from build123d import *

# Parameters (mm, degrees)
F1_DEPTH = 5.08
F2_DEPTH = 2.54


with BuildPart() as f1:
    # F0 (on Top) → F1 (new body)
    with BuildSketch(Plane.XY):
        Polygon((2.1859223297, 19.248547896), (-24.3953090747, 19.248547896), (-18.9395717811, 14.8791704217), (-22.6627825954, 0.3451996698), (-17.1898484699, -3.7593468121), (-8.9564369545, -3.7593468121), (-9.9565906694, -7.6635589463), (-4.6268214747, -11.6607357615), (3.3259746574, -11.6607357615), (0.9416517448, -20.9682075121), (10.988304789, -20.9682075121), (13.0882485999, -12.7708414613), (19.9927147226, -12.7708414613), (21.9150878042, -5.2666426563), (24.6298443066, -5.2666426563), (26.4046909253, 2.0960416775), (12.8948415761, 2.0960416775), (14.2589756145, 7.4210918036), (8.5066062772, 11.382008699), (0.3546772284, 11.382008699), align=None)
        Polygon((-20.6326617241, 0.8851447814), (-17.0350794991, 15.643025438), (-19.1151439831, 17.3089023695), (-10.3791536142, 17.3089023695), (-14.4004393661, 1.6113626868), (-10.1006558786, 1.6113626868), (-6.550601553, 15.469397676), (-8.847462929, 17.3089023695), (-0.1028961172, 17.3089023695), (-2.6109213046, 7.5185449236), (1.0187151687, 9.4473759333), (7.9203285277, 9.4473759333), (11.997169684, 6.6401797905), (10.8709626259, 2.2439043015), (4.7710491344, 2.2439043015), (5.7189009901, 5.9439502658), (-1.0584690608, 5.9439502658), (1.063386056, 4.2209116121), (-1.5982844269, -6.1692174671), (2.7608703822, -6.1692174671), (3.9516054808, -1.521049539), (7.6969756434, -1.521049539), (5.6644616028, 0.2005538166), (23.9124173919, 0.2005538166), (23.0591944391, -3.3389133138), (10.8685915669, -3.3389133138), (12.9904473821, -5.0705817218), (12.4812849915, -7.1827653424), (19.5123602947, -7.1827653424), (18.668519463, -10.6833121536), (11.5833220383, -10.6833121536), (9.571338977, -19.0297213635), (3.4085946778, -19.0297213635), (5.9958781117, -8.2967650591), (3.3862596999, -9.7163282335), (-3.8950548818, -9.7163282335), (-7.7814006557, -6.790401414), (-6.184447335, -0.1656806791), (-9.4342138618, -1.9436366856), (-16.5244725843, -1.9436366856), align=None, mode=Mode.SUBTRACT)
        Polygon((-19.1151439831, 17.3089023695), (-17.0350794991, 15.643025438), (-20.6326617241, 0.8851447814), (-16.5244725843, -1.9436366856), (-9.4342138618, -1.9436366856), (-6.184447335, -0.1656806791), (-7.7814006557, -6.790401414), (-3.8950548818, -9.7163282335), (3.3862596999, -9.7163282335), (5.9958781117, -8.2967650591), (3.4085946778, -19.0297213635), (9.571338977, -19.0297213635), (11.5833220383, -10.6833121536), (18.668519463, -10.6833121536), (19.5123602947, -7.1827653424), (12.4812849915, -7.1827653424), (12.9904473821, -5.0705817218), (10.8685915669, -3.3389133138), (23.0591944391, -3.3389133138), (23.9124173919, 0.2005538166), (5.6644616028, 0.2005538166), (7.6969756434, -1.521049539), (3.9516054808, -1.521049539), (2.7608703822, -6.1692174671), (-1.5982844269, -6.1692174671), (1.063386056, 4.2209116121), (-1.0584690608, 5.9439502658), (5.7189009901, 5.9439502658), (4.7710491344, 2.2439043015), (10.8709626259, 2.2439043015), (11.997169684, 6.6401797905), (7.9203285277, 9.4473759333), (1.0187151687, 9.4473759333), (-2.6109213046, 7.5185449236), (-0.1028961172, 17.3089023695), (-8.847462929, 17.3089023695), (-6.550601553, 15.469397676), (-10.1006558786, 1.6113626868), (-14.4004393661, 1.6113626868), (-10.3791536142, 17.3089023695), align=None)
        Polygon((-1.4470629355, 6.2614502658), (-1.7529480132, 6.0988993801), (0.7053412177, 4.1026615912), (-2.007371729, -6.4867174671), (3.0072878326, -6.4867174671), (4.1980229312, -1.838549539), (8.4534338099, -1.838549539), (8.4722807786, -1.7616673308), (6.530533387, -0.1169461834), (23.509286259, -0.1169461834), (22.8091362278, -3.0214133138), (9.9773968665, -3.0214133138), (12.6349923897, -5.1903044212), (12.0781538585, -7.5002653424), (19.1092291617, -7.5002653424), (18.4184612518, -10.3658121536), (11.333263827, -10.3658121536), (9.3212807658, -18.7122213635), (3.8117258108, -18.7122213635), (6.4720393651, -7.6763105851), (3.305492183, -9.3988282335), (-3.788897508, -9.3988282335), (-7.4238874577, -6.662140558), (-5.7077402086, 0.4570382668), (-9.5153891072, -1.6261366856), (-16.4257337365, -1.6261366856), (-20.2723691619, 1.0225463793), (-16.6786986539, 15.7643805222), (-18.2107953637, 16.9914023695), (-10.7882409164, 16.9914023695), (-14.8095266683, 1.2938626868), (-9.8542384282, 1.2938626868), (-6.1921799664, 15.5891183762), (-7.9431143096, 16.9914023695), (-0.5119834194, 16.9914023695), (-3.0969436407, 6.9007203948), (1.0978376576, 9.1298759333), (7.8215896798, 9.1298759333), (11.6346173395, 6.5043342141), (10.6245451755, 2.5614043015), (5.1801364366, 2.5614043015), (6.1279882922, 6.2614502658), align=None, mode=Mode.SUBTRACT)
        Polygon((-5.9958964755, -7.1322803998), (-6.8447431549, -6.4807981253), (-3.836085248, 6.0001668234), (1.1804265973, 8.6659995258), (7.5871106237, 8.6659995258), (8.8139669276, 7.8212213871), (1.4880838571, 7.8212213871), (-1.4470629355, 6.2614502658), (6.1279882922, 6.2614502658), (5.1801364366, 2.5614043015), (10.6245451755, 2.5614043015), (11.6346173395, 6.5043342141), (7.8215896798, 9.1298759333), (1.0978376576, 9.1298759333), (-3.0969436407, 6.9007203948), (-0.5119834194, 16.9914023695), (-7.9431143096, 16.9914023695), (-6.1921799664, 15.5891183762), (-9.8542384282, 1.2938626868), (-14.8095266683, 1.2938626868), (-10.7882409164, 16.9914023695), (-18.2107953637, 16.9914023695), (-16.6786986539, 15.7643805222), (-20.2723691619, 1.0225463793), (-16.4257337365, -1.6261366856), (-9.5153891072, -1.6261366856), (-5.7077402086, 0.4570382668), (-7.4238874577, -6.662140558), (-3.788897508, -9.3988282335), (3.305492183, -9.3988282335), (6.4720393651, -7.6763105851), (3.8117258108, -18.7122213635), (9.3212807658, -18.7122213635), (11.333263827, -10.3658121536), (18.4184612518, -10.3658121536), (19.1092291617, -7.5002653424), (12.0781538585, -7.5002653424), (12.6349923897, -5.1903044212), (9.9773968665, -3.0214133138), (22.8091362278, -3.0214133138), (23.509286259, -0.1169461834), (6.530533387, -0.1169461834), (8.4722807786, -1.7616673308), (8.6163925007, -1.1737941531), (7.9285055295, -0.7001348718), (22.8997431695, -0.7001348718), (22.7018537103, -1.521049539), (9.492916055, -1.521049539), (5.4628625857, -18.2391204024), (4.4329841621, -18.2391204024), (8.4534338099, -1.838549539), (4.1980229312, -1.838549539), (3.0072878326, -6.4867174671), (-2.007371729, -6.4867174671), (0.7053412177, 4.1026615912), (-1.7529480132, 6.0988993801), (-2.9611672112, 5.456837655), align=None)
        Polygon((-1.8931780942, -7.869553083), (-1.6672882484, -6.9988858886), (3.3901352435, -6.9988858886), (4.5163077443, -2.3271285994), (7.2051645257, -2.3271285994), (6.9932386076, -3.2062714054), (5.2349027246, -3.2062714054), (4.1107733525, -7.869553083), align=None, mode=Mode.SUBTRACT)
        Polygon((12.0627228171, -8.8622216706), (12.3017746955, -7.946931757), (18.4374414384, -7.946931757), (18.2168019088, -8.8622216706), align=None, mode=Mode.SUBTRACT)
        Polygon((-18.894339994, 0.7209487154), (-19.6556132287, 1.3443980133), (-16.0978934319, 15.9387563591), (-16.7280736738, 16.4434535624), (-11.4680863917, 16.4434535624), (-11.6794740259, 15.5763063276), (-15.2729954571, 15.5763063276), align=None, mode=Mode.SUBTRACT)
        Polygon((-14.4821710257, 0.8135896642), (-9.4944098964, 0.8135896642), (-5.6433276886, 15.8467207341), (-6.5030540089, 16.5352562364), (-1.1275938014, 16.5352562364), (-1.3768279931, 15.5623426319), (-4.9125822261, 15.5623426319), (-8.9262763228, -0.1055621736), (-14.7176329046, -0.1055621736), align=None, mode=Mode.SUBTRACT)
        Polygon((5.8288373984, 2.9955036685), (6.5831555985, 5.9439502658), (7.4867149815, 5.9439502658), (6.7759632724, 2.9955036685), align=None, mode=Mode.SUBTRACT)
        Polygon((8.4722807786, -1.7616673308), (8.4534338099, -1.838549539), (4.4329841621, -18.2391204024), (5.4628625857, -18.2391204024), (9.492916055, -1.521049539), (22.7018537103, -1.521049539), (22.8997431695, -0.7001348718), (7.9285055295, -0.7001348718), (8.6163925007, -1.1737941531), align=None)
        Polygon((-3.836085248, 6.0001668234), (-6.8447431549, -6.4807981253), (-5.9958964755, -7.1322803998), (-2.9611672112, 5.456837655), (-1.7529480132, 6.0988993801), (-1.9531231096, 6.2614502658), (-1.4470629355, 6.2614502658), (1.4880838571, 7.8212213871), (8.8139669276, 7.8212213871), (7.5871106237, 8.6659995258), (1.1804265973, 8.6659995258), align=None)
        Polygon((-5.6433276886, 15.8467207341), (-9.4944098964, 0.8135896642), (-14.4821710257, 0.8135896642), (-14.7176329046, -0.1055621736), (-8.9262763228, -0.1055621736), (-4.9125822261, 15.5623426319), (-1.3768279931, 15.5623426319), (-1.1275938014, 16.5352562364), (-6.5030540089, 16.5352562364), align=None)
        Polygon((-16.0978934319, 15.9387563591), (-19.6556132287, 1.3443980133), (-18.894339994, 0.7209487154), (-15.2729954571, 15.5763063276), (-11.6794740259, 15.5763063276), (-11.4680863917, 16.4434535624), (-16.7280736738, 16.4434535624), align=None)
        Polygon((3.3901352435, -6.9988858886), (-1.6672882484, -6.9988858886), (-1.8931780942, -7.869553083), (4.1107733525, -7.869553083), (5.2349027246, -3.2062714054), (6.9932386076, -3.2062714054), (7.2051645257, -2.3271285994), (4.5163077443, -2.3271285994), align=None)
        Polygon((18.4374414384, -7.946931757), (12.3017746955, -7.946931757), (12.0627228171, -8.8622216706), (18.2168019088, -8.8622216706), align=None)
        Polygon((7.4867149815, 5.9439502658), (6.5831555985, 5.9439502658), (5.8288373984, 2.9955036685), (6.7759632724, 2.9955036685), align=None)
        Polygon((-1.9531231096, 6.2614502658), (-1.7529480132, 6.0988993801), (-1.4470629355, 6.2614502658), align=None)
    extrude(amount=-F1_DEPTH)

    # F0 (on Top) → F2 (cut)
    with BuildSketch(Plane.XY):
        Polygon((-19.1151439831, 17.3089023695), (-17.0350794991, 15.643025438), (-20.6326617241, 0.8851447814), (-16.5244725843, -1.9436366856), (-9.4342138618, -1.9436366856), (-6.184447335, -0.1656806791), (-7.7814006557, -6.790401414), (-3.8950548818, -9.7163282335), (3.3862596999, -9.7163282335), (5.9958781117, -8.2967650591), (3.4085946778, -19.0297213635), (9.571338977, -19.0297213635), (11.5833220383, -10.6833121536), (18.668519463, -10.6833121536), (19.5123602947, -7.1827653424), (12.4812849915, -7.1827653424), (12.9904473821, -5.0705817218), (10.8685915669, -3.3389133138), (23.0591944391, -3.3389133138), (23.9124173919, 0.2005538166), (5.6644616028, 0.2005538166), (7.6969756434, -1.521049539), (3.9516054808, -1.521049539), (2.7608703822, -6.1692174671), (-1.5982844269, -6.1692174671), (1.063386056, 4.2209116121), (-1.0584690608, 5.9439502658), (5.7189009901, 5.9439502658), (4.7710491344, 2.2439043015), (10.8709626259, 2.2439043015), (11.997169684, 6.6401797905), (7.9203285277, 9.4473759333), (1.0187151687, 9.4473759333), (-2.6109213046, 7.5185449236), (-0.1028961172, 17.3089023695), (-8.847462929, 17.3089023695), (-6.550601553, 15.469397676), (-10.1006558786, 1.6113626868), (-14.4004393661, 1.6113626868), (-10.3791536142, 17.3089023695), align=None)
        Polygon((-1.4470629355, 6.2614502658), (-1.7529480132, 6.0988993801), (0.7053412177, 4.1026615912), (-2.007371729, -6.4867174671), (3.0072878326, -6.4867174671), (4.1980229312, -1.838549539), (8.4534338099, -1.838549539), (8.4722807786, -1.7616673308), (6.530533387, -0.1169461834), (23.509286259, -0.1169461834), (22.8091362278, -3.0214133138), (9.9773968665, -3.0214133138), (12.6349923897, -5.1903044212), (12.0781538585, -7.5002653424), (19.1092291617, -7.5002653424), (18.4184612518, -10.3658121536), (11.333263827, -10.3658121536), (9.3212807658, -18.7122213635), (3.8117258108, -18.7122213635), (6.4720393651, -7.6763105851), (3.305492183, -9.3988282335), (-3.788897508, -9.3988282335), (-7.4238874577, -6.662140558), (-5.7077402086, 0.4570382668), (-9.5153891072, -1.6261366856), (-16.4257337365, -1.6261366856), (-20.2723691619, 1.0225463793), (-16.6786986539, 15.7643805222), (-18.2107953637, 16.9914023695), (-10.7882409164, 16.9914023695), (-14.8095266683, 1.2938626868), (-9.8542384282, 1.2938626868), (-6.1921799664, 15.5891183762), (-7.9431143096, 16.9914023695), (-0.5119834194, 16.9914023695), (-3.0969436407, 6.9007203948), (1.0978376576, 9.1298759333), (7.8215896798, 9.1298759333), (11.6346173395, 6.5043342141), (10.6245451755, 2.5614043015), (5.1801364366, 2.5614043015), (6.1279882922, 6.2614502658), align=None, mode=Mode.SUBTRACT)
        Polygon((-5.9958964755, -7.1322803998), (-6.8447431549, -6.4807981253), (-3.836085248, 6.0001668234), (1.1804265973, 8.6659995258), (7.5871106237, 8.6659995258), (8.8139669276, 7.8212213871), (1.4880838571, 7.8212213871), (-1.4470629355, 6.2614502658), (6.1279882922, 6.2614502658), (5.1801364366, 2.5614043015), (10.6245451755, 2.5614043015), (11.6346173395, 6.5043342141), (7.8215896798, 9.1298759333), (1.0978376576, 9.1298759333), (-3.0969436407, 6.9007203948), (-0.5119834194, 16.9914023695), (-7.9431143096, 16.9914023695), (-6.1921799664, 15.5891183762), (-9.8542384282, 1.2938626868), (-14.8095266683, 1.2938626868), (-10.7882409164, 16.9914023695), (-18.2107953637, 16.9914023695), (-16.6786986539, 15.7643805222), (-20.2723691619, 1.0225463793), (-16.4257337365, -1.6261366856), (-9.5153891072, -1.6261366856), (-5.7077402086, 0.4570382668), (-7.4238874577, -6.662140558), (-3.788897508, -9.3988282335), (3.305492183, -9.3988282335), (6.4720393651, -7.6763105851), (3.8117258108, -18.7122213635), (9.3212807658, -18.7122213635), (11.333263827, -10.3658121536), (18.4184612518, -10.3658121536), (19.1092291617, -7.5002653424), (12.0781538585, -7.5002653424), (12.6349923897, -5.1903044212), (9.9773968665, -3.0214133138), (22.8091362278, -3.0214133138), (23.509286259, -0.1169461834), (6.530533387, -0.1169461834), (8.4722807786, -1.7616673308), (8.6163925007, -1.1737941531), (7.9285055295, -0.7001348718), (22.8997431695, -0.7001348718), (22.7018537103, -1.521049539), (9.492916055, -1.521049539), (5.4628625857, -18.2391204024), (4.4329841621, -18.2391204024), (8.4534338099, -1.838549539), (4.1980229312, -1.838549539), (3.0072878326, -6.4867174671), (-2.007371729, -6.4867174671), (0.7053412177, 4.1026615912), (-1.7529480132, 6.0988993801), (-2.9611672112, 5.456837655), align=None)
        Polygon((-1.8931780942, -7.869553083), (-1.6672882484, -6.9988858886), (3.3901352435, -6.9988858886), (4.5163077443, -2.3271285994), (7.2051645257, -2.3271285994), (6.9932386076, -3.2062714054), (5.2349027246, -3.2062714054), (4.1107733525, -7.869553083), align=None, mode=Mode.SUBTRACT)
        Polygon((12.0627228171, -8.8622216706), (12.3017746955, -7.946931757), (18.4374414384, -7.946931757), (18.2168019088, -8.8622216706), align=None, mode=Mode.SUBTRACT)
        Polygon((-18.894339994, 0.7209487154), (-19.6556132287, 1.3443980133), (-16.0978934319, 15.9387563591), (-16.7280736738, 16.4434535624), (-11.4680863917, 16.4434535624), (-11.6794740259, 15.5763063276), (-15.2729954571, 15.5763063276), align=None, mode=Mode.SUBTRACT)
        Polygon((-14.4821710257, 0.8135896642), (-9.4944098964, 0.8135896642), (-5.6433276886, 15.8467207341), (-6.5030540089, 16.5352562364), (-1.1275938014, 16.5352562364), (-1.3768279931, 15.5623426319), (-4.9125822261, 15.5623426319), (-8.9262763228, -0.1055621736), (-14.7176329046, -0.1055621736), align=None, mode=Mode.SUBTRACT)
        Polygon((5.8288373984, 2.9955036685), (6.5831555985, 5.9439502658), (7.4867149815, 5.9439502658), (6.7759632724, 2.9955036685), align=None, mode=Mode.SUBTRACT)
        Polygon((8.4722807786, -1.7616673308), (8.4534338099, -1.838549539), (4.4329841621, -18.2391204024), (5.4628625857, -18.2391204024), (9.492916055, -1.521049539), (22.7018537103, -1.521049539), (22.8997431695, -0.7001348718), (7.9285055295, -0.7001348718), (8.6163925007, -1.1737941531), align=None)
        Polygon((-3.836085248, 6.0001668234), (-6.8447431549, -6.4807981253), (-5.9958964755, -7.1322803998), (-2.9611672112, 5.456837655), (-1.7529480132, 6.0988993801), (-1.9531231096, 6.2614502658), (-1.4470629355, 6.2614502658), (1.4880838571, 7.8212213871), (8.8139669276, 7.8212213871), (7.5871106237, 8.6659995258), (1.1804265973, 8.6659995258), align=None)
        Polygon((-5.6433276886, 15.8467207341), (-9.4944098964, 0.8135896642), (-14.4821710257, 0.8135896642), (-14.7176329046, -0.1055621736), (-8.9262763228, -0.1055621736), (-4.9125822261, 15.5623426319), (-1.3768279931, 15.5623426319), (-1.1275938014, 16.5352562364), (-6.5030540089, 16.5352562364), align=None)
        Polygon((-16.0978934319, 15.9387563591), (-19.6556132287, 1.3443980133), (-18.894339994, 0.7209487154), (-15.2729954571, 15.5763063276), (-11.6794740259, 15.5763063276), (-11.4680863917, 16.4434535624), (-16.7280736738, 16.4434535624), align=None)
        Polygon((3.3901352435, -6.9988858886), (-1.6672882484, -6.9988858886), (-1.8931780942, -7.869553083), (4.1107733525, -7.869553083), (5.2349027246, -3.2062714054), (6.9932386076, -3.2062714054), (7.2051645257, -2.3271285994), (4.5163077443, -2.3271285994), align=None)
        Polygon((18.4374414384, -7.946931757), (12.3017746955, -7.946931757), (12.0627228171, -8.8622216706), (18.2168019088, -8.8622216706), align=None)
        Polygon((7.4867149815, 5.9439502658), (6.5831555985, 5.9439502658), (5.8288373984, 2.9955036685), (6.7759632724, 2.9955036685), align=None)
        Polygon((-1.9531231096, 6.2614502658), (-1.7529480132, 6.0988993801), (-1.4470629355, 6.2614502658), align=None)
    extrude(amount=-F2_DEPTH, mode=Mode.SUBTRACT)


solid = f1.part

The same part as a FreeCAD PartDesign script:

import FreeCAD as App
import Part
import Sketcher
from FreeCAD import Vector
Q = App.Units.Quantity


def add_polygon(sketch, points):
    """Adds a closed chain of lines whose ends are joined by coincident constraints."""
    first, n = sketch.GeometryCount, len(points)
    for a, b in zip(points, points[1:] + points[:1]):
        sketch.addGeometry(Part.LineSegment(App.Vector(*a, 0), App.Vector(*b, 0)), False)
    for i in range(n):
        sketch.addConstraint(Sketcher.Constraint("Coincident", first + i, 2, first + (i + 1) % n, 1))

doc = App.newDocument("Part")
body = doc.addObject("PartDesign::Body", "Body")

sketch1 = body.newObject("Sketcher::SketchObject", "Sketch")
sketch1.AttachmentSupport = (doc.getObject("XY_Plane"), [""])
sketch1.MapMode = "FlatFace"
add_polygon(sketch1, [(2.2, 19.2), (-24.4, 19.2), (-18.9, 14.9), (-22.7, 0.3), (-17.2, -3.8), (-9, -3.8), (-10, -7.7), (-4.6, -11.7), (3.3, -11.7), (0.9, -21), (11, -21), (13.1, -12.8), (20, -12.8), (21.9, -5.3), (24.6, -5.3), (26.4, 2.1), (12.9, 2.1), (14.3, 7.4), (8.5, 11.4), (0.4, 11.4)])
sketch1.addConstraint(Sketcher.Constraint("Horizontal", 0))
sketch1.addConstraint(Sketcher.Constraint("Horizontal", 4))
sketch1.addConstraint(Sketcher.Constraint("Horizontal", 7))
sketch1.addConstraint(Sketcher.Constraint("Horizontal", 9))
sketch1.addConstraint(Sketcher.Constraint("Horizontal", 11))
sketch1.addConstraint(Sketcher.Constraint("Horizontal", 13))
sketch1.addConstraint(Sketcher.Constraint("Horizontal", 15))
sketch1.addConstraint(Sketcher.Constraint("Horizontal", 18))
sketch1.addConstraint(Sketcher.Constraint("Parallel", 2, 5))
sketch1.addConstraint(Sketcher.Constraint("Parallel", 3, 6))
sketch1.addConstraint(Sketcher.Constraint("Parallel", 5, 8))
sketch1.addConstraint(Sketcher.Constraint("Parallel", 8, 10))
sketch1.addConstraint(Sketcher.Constraint("Parallel", 10, 12))
sketch1.addConstraint(Sketcher.Constraint("Parallel", 12, 16))
sketch1.addConstraint(Sketcher.Constraint("DistanceY", 3, 2, 1, 2, Q("0.7337999 in")))
sketch1.addConstraint(Sketcher.Constraint("Distance", 16, 5.497001))
sketch1.addConstraint(Sketcher.Constraint("DistanceX", 0, 2, 0, 1, 26.581231))
sketch1.addConstraint(Sketcher.Constraint("DistanceX", 4, 1, 4, 2, 8.233412))
sketch1.addConstraint(Sketcher.Constraint("DistanceX", 15, 2, 15, 1, 13.509849))
sketch1.addConstraint(Sketcher.Constraint("DistanceX", 18, 2, 18, 1, 8.151929))
sketch1.addConstraint(Sketcher.Constraint("DistanceY", -1, 1, 2, 2, 0.3452))
sketch1.addConstraint(Sketcher.Constraint("DistanceX", 3, 2, 8, 2, 18.1315))
sketch1.addConstraint(Sketcher.Constraint("DistanceY", 11, 2, 12, 2, 7.504199))
sketch1.addConstraint(Sketcher.Constraint("DistanceX", 18, 2, 16, 2, 13.904298))
sketch1.addConstraint(Sketcher.Constraint("Distance", 6, 6.662121))
sketch1.addConstraint(Sketcher.Constraint("Distance", 8, 9.608019))
sketch1.addConstraint(Sketcher.Constraint("Distance", 17, 6.984169))
sketch1.addConstraint(Sketcher.Constraint("DistanceX", 7, 1, 7, 2, 7.952796))
sketch1.addConstraint(Sketcher.Constraint("DistanceX", 9, 1, 9, 2, 10.046653))
sketch1.addConstraint(Sketcher.Constraint("DistanceX", 11, 1, 11, 2, 6.904466))
sketch1.addConstraint(Sketcher.Constraint("DistanceX", 13, 1, 13, 2, 2.714757))
sketch1.addConstraint(Sketcher.Constraint("DistanceX", 0, 2, -1, 1, 24.395309))
sketch1.addConstraint(Sketcher.Constraint("DistanceX", 1, 2, -1, 1, 18.939572))
sketch1.addConstraint(Sketcher.Constraint("DistanceY", -1, 1, 1, 2, 14.87917))
sketch1.addConstraint(Sketcher.Constraint("DistanceX", 3, 2, -1, 1, 17.189848))
sketch1.addConstraint(Sketcher.Constraint("DistanceX", 5, 2, -1, 1, 9.956591))
sketch1.addConstraint(Sketcher.Constraint("DistanceX", -1, 1, 10, 2, 13.088249))
sketch1.addConstraint(Sketcher.Constraint("DistanceX", -1, 1, 14, 2, 26.404691))
sketch1.addConstraint(Sketcher.Constraint("DistanceY", -1, 1, 14, 2, 2.096042))
sketch1.addConstraint(Sketcher.Constraint("DistanceY", 2, 2, 0, 2, 18.903348))
pad1 = body.newObject("PartDesign::Pad", "Pad")
pad1.Profile = sketch1
pad1.Length = Q("0.2 in")
pad1.Reversed = True

sketch2 = body.newObject("Sketcher::SketchObject", "Sketch001")
sketch2.AttachmentSupport = (doc.getObject("XY_Plane"), [""])
sketch2.MapMode = "FlatFace"
add_polygon(sketch2, [(-19.115144, 17.308902), (-17.035079, 15.643025), (-20.632662, 0.885145), (-16.524473, -1.943637), (-9.434214, -1.943637), (-6.184447, -0.165681), (-7.781401, -6.790401), (-3.895055, -9.716328), (3.38626, -9.716328), (5.995878, -8.296765), (3.408595, -19.029721), (9.571339, -19.029721), (11.583322, -10.683312), (18.668519, -10.683312), (19.51236, -7.182765), (12.481285, -7.182765), (12.990447, -5.070582), (10.868592, -3.338913), (23.059194, -3.338913), (23.912417, 0.200554), (5.664462, 0.200554), (7.696976, -1.52105), (3.951605, -1.52105), (2.76087, -6.169217), (-1.598284, -6.169217), (1.063386, 4.220912), (-1.058469, 5.94395), (5.718901, 5.94395), (4.771049, 2.243904), (10.870963, 2.243904), (11.99717, 6.64018), (7.920329, 9.447376), (1.018715, 9.447376), (-2.610921, 7.518545), (-0.102896, 17.308902), (-8.847463, 17.308902), (-6.550602, 15.469398), (-10.100656, 1.611363), (-14.400439, 1.611363), (-10.379154, 17.308902)])
sketch2.addConstraint(Sketcher.Constraint("Horizontal", 3))
sketch2.addConstraint(Sketcher.Constraint("Horizontal", 7))
sketch2.addConstraint(Sketcher.Constraint("Horizontal", 10))
sketch2.addConstraint(Sketcher.Constraint("Horizontal", 12))
sketch2.addConstraint(Sketcher.Constraint("Horizontal", 14))
sketch2.addConstraint(Sketcher.Constraint("Horizontal", 17))
sketch2.addConstraint(Sketcher.Constraint("Horizontal", 19))
sketch2.addConstraint(Sketcher.Constraint("Horizontal", 21))
sketch2.addConstraint(Sketcher.Constraint("Horizontal", 23))
sketch2.addConstraint(Sketcher.Constraint("Horizontal", 26))
sketch2.addConstraint(Sketcher.Constraint("Horizontal", 28))
sketch2.addConstraint(Sketcher.Constraint("Horizontal", 31))
sketch2.addConstraint(Sketcher.Constraint("Horizontal", 34))
sketch2.addConstraint(Sketcher.Constraint("Horizontal", 37))
sketch2.addConstraint(Sketcher.Constraint("Horizontal", 39))
sketch2.addConstraint(Sketcher.Constraint("DistanceX", 3, 1, 3, 2, 7.090259))
sketch2.addConstraint(Sketcher.Constraint("DistanceX", 21, 2, 21, 1, 3.74537))
sketch2.addConstraint(Sketcher.Constraint("DistanceX", 26, 1, 26, 2, 6.77737))
sketch2.addConstraint(Sketcher.Constraint("DistanceX", 39, 2, 39, 1, 8.73599))
sketch2.addConstraint(Sketcher.Constraint("DistanceX", 5, 2, -1, 1, 7.781401))
sketch2.addConstraint(Sketcher.Constraint("DistanceY", 5, 2, -1, 1, 6.790401))
sketch2.addConstraint(Sketcher.Constraint("DistanceX", -1, 1, 26, 2, 5.718901))
sketch2.addConstraint(Sketcher.Constraint("DistanceX", 35, 2, -1, 1, 6.550602))
sketch2.addConstraint(Sketcher.Constraint("DistanceY", 8, 2, 13, 2, 1.114))
sketch2.addConstraint(Sketcher.Constraint("DistanceX", 7, 2, 13, 2, 16.126101))
sketch2.addConstraint(Sketcher.Constraint("DistanceY", 11, 2, 16, 2, 7.344399))
sketch2.addConstraint(Sketcher.Constraint("DistanceX", 7, 2, 19, 2, 2.278202))
sketch2.addConstraint(Sketcher.Constraint("DistanceY", 21, 2, 25, 2, 7.465))
sketch2.addConstraint(Sketcher.Constraint("DistanceX", 19, 2, 28, 2, 5.206501))
sketch2.addConstraint(Sketcher.Constraint("DistanceY", 3, 2, 36, 2, 3.554999))
sketch2.addConstraint(Sketcher.Constraint("Distance", 1, 15.190051))
sketch2.addConstraint(Sketcher.Constraint("Distance", 6, 4.864641))
sketch2.addConstraint(Sketcher.Constraint("Distance", 11, 8.585489))
sketch2.addConstraint(Sketcher.Constraint("Distance", 13, 3.600819))
sketch2.addConstraint(Sketcher.Constraint("Distance", 20, 2.66365))
sketch2.addConstraint(Sketcher.Constraint("Distance", 22, 4.798262))
sketch2.addConstraint(Sketcher.Constraint("Distance", 32, 4.11031))
sketch2.addConstraint(Sketcher.Constraint("Distance", 38, 16.204428))
sketch2.addConstraint(Sketcher.Constraint("DistanceX", 7, 1, 7, 2, 7.281315))
sketch2.addConstraint(Sketcher.Constraint("DistanceX", 10, 1, 10, 2, 6.162744))
sketch2.addConstraint(Sketcher.Constraint("DistanceX", 12, 1, 12, 2, 7.085197))
sketch2.addConstraint(Sketcher.Constraint("DistanceX", 14, 2, 14, 1, 7.031075))
sketch2.addConstraint(Sketcher.Constraint("DistanceX", 17, 1, 17, 2, 12.190603))
sketch2.addConstraint(Sketcher.Constraint("DistanceX", 19, 2, 19, 1, 18.247956))
sketch2.addConstraint(Sketcher.Constraint("DistanceX", 23, 2, 23, 1, 4.359155))
sketch2.addConstraint(Sketcher.Constraint("DistanceX", 28, 1, 28, 2, 6.099913))
sketch2.addConstraint(Sketcher.Constraint("DistanceX", 31, 2, 31, 1, 6.901613))
sketch2.addConstraint(Sketcher.Constraint("DistanceX", 34, 2, 34, 1, 8.744567))
sketch2.addConstraint(Sketcher.Constraint("DistanceX", 37, 2, 37, 1, 4.299783))
sketch2.addConstraint(Sketcher.Constraint("DistanceX", 0, 2, -1, 1, 17.035079))
sketch2.addConstraint(Sketcher.Constraint("DistanceX", 1, 2, -1, 1, 20.632662))
sketch2.addConstraint(Sketcher.Constraint("DistanceY", 4, 2, -1, 1, 0.165681))
sketch2.addConstraint(Sketcher.Constraint("DistanceY", 6, 2, -1, 1, 9.716328))
sketch2.addConstraint(Sketcher.Constraint("DistanceX", -1, 1, 8, 2, 5.995878))
sketch2.addConstraint(Sketcher.Constraint("DistanceY", 9, 2, -1, 1, 19.029721))
sketch2.addConstraint(Sketcher.Constraint("DistanceX", -1, 1, 10, 2, 9.571339))
sketch2.addConstraint(Sketcher.Constraint("DistanceX", -1, 1, 12, 2, 18.668519))
sketch2.addConstraint(Sketcher.Constraint("DistanceY", 15, 2, -1, 1, 5.070582))
sketch2.addConstraint(Sketcher.Constraint("DistanceX", -1, 1, 16, 2, 10.868592))
sketch2.addConstraint(Sketcher.Constraint("DistanceY", 20, 2, -1, 1, 1.52105))
sketch2.addConstraint(Sketcher.Constraint("DistanceX", -1, 1, 22, 2, 2.76087))
sketch2.addConstraint(Sketcher.Constraint("DistanceY", -1, 1, 24, 2, 4.220912))
sketch2.addConstraint(Sketcher.Constraint("DistanceX", -1, 1, 29, 2, 11.99717))
sketch2.addConstraint(Sketcher.Constraint("DistanceY", -1, 1, 29, 2, 6.64018))
sketch2.addConstraint(Sketcher.Constraint("DistanceX", -1, 1, 30, 2, 7.920329))
sketch2.addConstraint(Sketcher.Constraint("DistanceX", 32, 2, -1, 1, 2.610921))
sketch2.addConstraint(Sketcher.Constraint("DistanceX", 37, 2, -1, 1, 14.400439))
sketch2.addConstraint(Sketcher.Constraint("DistanceX", 1, 2, 2, 2, 4.108189))
sketch2.addConstraint(Sketcher.Constraint("DistanceY", 2, 2, 1, 2, 2.828781))
sketch2.addConstraint(Sketcher.Constraint("DistanceY", 6, 2, 3, 2, 7.772692))
sketch2.addConstraint(Sketcher.Constraint("DistanceX", 8, 2, 15, 2, 6.994569))
sketch2.addConstraint(Sketcher.Constraint("DistanceY", 13, 2, 18, 2, 7.383319))
sketch2.addConstraint(Sketcher.Constraint("DistanceX", 24, 2, 21, 2, 2.888219))
sketch2.addConstraint(Sketcher.Constraint("DistanceX", 4, 2, 25, 2, 5.125978))
sketch2.addConstraint(Sketcher.Constraint("DistanceY", 19, 2, 27, 2, 2.04335))
sketch2.addConstraint(Sketcher.Constraint("DistanceY", 28, 2, 30, 2, 7.203472))
sketch2.addConstraint(Sketcher.Constraint("DistanceX", 33, 2, 31, 2, 1.121611))
sketch2.addConstraint(Sketcher.Constraint("DistanceY", 31, 2, 35, 2, 6.022022))
sketch2.addConstraint(Sketcher.Constraint("DistanceX", 38, 2, 34, 2, 1.531691))
sketch2.addConstraint(Sketcher.Constraint("Distance", 33, 10.106497))
pocket1 = body.newObject("PartDesign::Pocket", "Pocket")
pocket1.Profile = sketch2
pocket1.Length = Q("0.1 in")

doc.recompute()
